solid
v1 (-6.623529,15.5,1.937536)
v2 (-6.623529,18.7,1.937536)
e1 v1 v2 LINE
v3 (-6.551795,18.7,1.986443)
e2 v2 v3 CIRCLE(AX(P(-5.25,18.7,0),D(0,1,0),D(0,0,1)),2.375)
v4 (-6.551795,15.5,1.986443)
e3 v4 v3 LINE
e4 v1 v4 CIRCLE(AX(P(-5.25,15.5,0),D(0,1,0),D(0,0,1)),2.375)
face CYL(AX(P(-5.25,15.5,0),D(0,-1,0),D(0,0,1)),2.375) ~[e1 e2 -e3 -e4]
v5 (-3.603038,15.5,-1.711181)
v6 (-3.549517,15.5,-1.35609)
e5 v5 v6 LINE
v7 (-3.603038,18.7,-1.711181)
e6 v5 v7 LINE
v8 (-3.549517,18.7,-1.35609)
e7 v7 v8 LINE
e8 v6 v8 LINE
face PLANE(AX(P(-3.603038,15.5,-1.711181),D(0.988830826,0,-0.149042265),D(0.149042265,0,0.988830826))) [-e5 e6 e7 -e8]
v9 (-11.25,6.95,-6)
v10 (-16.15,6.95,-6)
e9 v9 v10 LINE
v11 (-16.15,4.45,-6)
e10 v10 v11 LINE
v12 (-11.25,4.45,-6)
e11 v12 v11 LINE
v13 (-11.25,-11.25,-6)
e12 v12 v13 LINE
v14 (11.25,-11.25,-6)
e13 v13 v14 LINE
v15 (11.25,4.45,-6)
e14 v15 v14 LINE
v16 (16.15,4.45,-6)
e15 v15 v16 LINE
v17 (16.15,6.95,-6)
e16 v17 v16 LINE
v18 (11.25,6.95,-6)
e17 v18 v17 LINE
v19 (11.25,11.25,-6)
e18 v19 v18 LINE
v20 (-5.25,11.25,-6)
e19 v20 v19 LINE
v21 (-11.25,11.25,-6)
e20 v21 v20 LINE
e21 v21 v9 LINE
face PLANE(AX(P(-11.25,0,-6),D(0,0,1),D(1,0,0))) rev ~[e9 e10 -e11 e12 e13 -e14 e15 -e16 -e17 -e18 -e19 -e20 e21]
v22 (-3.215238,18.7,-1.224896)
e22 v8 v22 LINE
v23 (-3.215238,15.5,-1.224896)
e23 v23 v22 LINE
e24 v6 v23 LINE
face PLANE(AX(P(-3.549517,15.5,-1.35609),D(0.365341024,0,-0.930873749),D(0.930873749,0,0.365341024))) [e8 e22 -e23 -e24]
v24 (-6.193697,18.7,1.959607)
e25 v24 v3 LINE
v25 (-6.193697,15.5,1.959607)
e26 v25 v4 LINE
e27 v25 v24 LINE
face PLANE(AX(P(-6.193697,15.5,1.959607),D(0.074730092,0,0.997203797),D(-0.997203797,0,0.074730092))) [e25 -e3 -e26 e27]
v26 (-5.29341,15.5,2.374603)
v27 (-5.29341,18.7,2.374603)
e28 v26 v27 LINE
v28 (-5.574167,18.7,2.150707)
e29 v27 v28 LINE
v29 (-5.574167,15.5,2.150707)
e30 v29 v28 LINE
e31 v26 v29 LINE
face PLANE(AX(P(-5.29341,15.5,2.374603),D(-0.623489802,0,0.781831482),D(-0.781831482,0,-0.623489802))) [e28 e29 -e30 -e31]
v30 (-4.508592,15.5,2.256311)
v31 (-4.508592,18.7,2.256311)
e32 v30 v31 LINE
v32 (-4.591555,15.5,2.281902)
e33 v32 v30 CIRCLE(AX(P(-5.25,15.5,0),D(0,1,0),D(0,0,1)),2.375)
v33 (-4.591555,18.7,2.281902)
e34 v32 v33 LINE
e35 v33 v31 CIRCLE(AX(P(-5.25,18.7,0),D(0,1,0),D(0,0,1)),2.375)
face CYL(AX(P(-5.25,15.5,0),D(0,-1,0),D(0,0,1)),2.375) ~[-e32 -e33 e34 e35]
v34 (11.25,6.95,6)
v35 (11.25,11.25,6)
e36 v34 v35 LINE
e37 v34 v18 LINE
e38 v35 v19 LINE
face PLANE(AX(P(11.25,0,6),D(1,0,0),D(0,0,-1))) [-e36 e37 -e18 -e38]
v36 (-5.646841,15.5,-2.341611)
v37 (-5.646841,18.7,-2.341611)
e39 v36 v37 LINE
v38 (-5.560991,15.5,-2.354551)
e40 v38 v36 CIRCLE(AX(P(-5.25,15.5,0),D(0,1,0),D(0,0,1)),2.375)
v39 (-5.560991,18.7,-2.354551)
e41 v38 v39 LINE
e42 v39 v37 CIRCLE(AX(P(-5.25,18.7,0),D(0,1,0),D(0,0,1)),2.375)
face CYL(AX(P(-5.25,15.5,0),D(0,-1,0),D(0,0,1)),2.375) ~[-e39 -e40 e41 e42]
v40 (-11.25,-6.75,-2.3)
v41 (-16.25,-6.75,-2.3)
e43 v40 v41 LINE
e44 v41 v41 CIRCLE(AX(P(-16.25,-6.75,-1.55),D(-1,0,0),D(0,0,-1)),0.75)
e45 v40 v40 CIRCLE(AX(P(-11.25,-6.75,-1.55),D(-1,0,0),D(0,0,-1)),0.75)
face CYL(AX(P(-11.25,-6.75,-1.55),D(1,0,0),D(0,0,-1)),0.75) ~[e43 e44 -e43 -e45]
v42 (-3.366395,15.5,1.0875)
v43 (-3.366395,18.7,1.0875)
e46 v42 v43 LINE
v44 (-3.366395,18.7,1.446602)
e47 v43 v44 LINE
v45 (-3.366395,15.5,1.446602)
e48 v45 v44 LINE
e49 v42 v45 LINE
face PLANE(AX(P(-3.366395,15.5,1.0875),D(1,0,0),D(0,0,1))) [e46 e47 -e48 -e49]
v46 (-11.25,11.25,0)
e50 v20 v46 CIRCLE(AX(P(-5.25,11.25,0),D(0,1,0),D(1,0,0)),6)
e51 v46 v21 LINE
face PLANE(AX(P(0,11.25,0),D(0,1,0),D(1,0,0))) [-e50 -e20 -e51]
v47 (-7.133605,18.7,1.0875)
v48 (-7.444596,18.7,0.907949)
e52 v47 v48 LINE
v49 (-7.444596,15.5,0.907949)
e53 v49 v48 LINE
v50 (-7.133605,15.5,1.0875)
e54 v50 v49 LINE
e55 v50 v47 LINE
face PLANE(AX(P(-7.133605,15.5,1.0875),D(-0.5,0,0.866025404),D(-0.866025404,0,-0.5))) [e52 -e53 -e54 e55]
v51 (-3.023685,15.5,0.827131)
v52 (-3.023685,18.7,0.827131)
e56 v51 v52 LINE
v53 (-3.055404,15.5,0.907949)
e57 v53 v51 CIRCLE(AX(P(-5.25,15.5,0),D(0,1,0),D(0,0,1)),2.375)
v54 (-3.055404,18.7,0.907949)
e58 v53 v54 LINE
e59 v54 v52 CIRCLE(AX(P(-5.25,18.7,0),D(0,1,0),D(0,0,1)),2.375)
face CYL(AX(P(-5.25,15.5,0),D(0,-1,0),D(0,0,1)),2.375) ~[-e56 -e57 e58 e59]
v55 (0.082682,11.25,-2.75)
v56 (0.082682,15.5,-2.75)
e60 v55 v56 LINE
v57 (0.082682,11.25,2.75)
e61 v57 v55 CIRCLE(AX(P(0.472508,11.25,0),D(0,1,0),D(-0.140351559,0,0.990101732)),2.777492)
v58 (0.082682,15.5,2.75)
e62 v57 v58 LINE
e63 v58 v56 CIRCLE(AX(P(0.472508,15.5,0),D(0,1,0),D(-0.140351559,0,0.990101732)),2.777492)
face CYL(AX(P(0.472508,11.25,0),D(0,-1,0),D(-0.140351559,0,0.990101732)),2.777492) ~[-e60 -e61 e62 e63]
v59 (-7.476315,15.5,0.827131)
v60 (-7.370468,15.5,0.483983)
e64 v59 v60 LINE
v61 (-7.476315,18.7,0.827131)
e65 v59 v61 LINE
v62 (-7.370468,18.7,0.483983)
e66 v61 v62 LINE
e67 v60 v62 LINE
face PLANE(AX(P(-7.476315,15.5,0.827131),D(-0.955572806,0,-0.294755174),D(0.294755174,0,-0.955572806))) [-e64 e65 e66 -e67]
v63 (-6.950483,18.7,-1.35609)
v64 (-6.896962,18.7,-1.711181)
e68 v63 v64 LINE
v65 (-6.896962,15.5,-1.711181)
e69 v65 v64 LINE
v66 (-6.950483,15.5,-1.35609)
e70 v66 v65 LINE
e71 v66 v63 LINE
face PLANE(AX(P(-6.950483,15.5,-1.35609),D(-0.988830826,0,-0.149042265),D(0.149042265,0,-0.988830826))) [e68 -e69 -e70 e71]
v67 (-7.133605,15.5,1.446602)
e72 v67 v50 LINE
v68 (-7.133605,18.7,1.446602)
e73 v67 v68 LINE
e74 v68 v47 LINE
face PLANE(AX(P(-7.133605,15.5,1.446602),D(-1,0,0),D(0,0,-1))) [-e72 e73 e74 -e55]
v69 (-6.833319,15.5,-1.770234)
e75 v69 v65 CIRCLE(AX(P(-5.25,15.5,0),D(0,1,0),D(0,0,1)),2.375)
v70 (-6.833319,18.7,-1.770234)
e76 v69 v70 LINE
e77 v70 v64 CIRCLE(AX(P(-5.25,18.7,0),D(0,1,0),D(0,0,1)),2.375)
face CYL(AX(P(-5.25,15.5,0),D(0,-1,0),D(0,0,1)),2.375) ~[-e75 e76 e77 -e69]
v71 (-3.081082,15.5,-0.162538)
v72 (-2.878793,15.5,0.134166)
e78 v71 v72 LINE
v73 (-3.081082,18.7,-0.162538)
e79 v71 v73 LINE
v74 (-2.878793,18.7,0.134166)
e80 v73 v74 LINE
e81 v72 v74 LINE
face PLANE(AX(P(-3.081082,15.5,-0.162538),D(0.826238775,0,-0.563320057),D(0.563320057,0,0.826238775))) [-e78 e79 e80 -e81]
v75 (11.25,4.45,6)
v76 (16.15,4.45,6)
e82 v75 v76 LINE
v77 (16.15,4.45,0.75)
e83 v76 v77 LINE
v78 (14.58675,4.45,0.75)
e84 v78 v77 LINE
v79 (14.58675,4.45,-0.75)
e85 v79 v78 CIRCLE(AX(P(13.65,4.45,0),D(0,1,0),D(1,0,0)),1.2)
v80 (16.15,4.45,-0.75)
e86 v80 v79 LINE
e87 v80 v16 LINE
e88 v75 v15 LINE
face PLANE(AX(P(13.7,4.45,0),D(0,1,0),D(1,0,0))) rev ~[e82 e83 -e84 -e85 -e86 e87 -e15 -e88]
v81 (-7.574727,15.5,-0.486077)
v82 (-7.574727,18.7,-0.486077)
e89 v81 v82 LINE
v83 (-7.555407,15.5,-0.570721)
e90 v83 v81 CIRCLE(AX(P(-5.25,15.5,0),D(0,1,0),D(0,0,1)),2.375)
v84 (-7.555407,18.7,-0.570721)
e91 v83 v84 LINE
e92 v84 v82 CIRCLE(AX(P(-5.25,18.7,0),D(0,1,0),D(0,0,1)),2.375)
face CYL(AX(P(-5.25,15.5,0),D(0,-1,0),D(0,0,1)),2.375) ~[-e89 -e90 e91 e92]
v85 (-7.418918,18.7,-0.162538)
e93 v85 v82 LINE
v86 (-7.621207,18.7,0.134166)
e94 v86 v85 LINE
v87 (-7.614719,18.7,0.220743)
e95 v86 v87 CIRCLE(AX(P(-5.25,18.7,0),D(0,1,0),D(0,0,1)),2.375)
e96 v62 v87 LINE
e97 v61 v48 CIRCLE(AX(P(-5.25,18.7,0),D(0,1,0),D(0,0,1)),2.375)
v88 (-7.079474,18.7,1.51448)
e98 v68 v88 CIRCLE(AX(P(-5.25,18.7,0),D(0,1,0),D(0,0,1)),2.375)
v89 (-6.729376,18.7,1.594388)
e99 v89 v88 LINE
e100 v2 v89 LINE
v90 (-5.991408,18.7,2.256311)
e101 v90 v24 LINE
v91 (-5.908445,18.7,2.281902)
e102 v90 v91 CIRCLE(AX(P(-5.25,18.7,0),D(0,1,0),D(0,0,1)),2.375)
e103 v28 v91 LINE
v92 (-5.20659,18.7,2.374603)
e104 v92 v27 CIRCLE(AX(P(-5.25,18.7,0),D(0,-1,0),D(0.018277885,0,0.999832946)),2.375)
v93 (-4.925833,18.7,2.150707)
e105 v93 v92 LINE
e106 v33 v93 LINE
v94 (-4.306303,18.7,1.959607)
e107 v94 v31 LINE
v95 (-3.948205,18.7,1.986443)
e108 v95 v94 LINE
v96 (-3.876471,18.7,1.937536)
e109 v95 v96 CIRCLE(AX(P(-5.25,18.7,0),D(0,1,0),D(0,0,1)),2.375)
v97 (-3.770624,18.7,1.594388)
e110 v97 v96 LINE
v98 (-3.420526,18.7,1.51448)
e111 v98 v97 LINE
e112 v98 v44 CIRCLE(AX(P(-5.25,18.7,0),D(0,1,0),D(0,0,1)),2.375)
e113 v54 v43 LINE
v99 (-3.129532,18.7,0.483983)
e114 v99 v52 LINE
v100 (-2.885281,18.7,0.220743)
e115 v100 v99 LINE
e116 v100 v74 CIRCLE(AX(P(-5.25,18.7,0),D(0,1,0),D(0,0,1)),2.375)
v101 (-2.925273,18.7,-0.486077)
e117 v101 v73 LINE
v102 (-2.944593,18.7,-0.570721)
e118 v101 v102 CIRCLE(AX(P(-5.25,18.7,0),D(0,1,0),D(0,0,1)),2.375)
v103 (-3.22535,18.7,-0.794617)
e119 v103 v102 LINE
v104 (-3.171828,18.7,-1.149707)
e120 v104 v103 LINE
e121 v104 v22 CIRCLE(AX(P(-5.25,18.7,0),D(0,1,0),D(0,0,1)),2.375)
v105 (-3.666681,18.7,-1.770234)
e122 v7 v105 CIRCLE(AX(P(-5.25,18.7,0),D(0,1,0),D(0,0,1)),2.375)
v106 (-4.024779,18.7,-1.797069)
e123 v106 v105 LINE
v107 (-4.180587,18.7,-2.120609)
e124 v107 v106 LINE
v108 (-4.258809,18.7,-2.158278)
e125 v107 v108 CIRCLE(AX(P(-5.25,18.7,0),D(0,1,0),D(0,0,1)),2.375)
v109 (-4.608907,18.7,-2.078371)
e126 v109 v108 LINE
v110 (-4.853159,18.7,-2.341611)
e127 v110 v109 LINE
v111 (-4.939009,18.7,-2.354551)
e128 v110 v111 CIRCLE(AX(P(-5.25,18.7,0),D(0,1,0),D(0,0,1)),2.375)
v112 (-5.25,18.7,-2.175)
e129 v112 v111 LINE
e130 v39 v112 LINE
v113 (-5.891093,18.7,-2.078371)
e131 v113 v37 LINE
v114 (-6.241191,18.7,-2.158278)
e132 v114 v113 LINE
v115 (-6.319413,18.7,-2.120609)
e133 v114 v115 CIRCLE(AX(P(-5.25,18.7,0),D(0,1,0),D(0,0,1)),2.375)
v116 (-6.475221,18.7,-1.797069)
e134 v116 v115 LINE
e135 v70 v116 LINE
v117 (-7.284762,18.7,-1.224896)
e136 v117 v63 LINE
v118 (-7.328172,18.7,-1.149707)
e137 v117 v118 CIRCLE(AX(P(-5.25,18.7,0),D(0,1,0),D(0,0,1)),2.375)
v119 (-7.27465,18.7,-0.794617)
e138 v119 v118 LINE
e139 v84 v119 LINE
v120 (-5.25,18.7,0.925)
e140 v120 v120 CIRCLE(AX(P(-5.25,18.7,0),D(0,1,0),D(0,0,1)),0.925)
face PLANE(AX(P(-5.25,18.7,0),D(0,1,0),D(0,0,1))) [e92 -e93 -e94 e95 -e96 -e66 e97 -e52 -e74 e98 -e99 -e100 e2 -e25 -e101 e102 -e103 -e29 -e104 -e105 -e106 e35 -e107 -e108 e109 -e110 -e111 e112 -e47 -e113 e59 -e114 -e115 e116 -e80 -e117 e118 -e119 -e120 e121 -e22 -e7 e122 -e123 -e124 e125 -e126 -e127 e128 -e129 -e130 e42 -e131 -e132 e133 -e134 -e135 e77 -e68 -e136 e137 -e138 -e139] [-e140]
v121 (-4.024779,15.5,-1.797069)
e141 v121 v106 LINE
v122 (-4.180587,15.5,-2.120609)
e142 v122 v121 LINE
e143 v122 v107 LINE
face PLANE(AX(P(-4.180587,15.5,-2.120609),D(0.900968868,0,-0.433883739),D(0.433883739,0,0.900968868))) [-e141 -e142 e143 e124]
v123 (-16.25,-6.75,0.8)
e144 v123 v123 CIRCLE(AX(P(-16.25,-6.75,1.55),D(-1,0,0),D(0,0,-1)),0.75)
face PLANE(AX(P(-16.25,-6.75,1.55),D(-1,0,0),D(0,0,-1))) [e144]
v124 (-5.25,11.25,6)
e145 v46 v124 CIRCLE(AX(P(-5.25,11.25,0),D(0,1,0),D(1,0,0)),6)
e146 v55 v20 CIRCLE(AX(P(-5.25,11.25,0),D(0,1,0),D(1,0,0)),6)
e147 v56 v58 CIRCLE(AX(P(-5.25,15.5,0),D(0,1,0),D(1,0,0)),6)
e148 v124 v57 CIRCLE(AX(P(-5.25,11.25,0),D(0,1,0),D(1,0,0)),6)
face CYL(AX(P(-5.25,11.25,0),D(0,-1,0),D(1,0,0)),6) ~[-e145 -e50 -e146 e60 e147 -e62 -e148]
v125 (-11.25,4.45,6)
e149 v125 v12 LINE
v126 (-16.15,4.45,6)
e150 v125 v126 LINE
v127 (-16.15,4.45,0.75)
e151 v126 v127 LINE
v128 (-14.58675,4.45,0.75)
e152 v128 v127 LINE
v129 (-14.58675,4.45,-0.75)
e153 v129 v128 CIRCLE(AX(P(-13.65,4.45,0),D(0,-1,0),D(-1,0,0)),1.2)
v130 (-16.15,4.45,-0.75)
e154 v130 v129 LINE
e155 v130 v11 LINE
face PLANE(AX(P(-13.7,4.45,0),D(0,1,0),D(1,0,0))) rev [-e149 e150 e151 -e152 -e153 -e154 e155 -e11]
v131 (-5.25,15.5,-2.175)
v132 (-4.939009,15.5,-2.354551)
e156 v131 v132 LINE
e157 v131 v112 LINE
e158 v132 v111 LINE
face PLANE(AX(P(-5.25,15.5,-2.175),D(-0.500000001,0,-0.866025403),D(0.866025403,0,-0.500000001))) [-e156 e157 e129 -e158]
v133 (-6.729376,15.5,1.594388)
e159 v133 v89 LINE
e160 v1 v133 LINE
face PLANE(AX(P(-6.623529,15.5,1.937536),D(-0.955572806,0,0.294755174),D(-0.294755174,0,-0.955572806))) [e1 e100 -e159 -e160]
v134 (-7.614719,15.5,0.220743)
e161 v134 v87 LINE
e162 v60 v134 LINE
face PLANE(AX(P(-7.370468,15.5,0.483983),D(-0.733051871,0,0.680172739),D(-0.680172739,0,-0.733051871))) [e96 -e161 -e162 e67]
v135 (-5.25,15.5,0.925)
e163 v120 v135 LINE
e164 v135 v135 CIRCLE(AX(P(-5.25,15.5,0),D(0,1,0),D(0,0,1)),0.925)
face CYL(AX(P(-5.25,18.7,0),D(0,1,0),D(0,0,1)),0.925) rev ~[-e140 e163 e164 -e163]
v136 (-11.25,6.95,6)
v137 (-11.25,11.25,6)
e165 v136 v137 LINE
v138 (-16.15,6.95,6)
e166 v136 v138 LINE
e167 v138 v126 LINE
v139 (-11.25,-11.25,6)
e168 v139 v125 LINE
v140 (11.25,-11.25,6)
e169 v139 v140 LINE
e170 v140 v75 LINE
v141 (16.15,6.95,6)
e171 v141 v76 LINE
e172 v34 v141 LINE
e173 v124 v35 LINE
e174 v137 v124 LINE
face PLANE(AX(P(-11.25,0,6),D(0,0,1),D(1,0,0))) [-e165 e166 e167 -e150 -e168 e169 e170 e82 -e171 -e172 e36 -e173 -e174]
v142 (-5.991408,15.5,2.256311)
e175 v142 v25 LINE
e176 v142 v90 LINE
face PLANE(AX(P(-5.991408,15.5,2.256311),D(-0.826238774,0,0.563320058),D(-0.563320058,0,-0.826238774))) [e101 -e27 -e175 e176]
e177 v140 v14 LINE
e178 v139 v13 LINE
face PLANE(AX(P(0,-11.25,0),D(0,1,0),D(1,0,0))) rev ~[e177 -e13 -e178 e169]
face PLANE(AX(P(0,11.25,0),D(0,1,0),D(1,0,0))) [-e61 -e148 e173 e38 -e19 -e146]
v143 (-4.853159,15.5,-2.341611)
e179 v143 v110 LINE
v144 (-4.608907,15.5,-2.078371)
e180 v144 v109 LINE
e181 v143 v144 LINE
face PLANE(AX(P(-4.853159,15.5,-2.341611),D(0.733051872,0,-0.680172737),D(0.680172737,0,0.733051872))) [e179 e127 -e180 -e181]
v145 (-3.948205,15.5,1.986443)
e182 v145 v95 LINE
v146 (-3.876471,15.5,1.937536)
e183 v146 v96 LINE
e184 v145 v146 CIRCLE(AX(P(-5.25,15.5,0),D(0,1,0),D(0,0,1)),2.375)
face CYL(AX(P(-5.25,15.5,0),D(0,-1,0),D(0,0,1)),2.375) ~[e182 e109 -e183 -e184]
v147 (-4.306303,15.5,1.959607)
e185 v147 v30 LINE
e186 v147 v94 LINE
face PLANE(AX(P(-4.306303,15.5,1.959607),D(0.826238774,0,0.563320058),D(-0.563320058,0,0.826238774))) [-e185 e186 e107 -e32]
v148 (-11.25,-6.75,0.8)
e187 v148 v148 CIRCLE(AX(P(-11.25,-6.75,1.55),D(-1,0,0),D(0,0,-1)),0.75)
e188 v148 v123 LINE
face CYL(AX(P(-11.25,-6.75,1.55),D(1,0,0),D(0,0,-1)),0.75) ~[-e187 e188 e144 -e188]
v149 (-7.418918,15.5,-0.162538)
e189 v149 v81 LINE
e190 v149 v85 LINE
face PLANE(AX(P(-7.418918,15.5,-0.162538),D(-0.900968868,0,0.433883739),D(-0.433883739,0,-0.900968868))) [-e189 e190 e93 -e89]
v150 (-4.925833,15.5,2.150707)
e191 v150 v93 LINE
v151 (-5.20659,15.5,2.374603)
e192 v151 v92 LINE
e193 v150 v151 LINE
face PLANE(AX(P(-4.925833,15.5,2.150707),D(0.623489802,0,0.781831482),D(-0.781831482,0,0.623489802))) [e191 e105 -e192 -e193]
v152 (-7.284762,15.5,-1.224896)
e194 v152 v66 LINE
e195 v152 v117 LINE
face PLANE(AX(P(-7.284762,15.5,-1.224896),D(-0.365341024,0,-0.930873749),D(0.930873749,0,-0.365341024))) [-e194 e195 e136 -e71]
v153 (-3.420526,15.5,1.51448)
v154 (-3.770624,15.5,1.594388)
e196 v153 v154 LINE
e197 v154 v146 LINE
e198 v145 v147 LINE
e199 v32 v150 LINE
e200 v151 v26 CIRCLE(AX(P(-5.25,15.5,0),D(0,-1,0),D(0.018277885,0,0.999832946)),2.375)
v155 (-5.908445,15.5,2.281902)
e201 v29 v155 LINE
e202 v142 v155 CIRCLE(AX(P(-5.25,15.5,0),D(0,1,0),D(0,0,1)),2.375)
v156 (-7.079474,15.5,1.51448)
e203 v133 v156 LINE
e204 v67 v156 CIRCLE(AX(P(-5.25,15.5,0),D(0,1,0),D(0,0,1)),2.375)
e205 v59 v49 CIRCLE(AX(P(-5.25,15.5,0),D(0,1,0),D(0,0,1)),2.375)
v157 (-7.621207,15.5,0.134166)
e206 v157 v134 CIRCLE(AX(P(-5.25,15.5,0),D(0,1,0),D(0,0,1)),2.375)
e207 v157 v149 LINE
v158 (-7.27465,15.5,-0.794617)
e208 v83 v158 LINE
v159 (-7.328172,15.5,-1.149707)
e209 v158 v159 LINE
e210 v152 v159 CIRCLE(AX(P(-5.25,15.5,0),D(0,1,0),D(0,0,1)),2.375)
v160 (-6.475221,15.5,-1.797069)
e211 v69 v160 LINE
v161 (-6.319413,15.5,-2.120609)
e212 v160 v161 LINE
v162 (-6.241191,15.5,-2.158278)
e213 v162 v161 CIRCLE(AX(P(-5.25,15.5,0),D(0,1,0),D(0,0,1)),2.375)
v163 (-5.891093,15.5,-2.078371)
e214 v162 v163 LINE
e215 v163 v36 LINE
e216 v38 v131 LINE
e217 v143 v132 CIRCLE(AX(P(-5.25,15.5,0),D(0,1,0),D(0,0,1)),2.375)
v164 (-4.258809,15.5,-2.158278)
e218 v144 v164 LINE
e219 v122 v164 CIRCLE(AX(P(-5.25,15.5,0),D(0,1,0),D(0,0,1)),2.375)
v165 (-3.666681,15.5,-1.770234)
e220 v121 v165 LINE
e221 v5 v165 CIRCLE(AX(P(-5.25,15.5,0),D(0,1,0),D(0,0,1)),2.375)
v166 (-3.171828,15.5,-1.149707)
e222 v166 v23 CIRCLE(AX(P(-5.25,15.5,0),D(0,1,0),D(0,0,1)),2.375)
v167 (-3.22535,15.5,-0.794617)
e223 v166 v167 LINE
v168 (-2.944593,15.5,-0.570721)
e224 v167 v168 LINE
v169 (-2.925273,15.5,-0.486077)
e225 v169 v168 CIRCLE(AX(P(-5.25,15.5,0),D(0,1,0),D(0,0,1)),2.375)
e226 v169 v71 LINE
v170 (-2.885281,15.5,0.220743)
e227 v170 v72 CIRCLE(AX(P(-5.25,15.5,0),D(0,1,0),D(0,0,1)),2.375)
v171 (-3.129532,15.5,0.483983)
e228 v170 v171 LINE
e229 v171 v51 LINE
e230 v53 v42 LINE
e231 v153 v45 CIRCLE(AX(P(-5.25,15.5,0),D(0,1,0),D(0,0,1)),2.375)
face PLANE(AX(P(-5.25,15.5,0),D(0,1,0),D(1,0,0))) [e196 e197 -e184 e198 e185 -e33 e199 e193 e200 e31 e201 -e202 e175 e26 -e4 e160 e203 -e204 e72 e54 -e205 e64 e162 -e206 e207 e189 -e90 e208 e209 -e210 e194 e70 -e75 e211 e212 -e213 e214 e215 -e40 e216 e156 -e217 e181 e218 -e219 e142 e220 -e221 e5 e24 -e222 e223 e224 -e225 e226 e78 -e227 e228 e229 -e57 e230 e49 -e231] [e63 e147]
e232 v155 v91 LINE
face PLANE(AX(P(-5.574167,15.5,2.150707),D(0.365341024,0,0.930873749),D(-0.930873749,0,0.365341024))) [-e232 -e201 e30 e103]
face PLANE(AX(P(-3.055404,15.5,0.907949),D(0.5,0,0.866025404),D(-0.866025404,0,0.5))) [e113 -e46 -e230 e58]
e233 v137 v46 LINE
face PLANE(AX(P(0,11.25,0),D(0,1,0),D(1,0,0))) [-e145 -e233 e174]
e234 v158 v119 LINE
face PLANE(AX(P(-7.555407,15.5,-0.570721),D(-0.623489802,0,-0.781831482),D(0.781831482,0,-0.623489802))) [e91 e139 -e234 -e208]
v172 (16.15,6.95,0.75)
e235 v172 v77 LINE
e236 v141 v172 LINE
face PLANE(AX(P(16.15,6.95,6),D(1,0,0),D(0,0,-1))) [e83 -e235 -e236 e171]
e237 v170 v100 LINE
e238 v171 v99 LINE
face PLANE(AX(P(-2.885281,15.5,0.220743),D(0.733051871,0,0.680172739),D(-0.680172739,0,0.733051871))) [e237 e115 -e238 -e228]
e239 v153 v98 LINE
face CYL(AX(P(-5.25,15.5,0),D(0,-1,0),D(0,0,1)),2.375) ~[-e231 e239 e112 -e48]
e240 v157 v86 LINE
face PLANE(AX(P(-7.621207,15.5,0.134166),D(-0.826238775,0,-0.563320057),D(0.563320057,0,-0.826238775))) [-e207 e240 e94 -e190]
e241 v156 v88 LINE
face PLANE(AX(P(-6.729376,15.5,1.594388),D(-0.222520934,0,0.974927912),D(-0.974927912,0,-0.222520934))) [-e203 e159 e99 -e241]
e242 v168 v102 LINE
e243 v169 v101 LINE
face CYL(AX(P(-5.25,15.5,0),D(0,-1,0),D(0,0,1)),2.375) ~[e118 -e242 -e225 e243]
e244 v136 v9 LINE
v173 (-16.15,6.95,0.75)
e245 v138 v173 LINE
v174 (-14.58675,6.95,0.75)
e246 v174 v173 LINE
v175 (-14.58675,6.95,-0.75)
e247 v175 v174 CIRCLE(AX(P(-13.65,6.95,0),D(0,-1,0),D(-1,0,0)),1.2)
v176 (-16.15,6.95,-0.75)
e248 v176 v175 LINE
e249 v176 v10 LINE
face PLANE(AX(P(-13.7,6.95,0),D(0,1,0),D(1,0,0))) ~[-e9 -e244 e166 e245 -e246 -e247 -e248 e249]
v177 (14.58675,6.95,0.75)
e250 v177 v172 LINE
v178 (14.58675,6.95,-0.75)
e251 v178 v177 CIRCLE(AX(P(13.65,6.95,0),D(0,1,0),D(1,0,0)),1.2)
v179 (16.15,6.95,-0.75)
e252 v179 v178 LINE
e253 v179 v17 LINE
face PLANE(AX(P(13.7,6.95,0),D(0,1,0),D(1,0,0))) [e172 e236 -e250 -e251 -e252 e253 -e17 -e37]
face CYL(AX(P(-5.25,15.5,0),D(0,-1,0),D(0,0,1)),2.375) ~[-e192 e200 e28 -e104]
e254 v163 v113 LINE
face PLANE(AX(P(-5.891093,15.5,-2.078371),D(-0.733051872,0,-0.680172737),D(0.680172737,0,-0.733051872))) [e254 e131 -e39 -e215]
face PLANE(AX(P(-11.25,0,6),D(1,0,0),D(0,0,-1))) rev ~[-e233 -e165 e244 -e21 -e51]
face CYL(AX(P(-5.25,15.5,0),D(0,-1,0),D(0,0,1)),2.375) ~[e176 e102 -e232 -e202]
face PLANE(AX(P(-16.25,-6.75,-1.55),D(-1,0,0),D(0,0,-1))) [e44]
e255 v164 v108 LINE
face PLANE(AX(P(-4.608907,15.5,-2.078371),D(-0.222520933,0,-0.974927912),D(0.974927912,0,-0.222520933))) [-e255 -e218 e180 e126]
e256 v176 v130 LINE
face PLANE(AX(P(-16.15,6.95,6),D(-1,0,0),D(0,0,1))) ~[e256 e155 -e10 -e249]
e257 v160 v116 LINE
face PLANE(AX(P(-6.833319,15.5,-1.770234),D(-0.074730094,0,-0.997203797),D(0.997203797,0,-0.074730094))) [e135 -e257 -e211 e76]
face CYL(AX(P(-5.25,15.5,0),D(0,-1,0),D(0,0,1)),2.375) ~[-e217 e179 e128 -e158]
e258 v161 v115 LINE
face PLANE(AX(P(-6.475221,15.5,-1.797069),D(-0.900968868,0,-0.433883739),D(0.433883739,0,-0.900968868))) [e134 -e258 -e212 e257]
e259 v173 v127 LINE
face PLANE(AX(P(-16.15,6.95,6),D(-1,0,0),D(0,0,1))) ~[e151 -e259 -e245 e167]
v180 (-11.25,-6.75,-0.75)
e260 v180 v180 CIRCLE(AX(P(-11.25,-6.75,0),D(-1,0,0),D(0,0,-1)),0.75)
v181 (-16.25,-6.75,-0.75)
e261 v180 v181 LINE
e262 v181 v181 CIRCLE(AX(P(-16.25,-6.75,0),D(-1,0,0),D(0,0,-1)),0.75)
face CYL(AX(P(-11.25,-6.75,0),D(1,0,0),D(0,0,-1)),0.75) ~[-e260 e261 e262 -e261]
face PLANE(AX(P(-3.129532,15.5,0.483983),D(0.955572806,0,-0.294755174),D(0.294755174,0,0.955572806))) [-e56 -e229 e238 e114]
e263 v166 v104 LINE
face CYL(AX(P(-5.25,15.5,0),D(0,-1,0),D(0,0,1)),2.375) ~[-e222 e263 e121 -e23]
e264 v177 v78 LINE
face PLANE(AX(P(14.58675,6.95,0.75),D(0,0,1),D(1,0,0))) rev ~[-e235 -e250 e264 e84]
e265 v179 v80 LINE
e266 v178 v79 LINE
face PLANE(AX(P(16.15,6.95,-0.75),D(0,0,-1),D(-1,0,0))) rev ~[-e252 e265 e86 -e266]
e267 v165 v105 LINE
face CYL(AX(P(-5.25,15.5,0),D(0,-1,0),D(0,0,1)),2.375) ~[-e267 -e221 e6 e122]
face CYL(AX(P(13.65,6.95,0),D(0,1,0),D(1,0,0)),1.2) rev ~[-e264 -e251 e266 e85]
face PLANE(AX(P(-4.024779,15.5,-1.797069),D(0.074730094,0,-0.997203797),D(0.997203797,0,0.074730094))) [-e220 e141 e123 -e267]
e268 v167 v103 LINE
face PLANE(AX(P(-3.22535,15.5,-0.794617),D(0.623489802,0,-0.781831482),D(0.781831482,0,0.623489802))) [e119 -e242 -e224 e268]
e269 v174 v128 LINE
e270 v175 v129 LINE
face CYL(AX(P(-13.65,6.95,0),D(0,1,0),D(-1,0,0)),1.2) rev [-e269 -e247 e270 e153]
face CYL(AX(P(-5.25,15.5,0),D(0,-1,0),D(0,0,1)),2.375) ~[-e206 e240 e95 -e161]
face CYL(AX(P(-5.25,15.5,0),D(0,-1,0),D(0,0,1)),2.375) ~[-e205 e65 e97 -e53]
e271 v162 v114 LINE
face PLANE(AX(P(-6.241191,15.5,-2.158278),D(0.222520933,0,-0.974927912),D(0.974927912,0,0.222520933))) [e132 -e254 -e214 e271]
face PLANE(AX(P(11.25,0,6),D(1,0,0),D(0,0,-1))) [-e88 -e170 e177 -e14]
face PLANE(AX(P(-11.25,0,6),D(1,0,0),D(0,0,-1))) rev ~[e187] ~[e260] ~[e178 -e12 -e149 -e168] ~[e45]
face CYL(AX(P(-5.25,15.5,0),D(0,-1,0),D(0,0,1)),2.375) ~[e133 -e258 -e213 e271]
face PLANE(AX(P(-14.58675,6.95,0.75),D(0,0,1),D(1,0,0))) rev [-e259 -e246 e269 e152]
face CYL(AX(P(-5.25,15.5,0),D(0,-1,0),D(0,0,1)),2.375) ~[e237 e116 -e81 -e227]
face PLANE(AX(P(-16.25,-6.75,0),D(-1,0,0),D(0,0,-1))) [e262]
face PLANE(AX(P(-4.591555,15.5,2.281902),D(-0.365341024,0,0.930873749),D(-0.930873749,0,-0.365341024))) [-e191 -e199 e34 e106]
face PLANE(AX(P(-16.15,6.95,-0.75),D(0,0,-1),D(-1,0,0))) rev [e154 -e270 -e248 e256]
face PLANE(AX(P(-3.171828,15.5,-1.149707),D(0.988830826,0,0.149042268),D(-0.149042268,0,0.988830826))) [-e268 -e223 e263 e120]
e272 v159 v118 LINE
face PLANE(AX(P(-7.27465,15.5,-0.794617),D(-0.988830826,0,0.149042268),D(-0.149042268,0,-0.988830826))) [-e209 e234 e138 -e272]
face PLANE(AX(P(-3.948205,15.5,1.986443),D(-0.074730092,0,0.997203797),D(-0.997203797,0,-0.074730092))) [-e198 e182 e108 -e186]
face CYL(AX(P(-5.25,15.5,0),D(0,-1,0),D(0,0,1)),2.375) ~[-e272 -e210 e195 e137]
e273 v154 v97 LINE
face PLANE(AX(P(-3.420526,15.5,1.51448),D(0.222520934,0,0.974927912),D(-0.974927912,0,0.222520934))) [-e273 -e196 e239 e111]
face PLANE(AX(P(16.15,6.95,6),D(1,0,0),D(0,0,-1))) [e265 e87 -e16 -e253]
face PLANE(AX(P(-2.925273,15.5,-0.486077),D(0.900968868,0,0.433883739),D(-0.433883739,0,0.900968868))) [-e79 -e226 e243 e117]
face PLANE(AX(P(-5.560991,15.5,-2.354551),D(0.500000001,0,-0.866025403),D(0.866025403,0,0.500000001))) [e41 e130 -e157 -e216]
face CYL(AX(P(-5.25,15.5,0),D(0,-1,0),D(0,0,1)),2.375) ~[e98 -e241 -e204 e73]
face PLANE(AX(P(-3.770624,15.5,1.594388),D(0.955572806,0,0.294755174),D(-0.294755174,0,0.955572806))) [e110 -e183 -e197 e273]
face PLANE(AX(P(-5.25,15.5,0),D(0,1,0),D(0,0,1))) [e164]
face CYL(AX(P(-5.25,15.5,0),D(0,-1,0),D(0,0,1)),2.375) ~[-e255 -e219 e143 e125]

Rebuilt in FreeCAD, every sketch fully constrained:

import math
import FreeCAD as App
import Part
import Sketcher

V = App.Vector
Q = App.Units.Quantity

doc = App.newDocument("Part")
params = doc.addObject("Spreadsheet::Sheet", "Params")
for row, (alias, value) in enumerate([
    ("sketch1_height", "12 mm"),
    ("sketch1_width", "22.5 mm"),
    ("pad1_length", "22.5 mm"),
    ("sketch2_radius", "6 mm"),
    ("pad2_length", "4.25 mm"),
    ("sketch3_height", "12 mm"),
    ("sketch3_width", "4.9 mm"),
    ("pad3_length", "2.5 mm"),
    ("sketch4_radius", "1.2 mm"),
    ("sketch4_height", "1.5 mm"),
    ("pocket1_length", "2.5 mm"),
    ("sketch5_diameter", "1.5 mm"),
    ("pad4_length", "5 mm"),
    ("sketch6_diameter", "4.75 mm"),
    ("pad5_length", "3.2 mm"),
    ("pocket2_length", "3.2 mm"),
    ("sketch8_diameter", "1.85 mm"),
    ("pocket3_length", "3.2 mm"),
], start=1):
    params.set(f"A{row}", alias)
    params.set(f"B{row}", "=" + value)
    params.setAlias(f"B{row}", alias)

body = doc.addObject("PartDesign::Body", "Body")

sketch1 = body.newObject("Sketcher::SketchObject", "Sketch")
sketch1.AttachmentSupport = (doc.getObject("XZ_Plane"), [""])
sketch1.MapMode = "FlatFace"
sketch1.addGeometry([
    Part.LineSegment(V(-11, -6, 0), V(-11, 6, 0)),
    Part.LineSegment(V(-11, 6, 0), V(11, 6, 0)),
    Part.LineSegment(V(11, 6, 0), V(11, -6, 0)),
    Part.LineSegment(V(11, -6, 0), V(-11, -6, 0)),
], False)
sketch1.addConstraint([
    Sketcher.Constraint("Coincident", 0, 2, 1, 1),
    Sketcher.Constraint("Coincident", 1, 2, 2, 1),
    Sketcher.Constraint("Coincident", 2, 2, 3, 1),
    Sketcher.Constraint("Coincident", 3, 2, 0, 1),
    Sketcher.Constraint("Vertical", 0),
    Sketcher.Constraint("Horizontal", 1),
    Sketcher.Constraint("Vertical", 2),
    Sketcher.Constraint("Horizontal", 3),
    Sketcher.Constraint("Symmetric", 0, 2, 2, 2, -1, 1),
    Sketcher.Constraint("DistanceY", 0, 1, 0, 2, Q("12 mm")),
    Sketcher.Constraint("DistanceX", 1, 1, 1, 2, Q("22.5 mm")),
])
sketch1.setExpression("Constraints[9]", "Params.sketch1_height")
sketch1.setExpression("Constraints[10]", "Params.sketch1_width")
pad1 = body.newObject("PartDesign::Pad", "Pad")
pad1.Profile = sketch1
pad1.setExpression("Length", "Params.pad1_length")
pad1.Midplane = True

sketch2 = body.newObject("Sketcher::SketchObject", "Sketch001")
sketch2.AttachmentSupport = (doc.getObject("XZ_Plane"), [""])
sketch2.MapMode = "FlatFace"
sketch2.AttachmentOffset = App.Placement(V(0, 0, -11.25), App.Rotation())
sketch2.addGeometry([
    Part.ArcOfCircle(Part.Circle(V(-5.2, 0, 0), V(0, 0, 1), 6), math.radians(27), math.radians(333)),
    Part.ArcOfCircle(Part.Circle(V(0.5, 0, 0), V(0, 0, 1), 2.8), math.radians(-98), math.radians(98)),
], False)
sketch2.addConstraint([
    Sketcher.Constraint("Coincident", 0, 1, 1, 2),
    Sketcher.Constraint("Coincident", 1, 1, 0, 2),
    Sketcher.Constraint("Symmetric", 0, 1, 1, 1, -1),
    Sketcher.Constraint("Radius", 0, Q("6 mm")),
    Sketcher.Constraint("DistanceY", 1, 1, 0, 1, Q("5.5 mm")),
    Sketcher.Constraint("DistanceX", 0, 3, -1, 1, Q("5.25 mm")),
    Sketcher.Constraint("Radius", 1, Q("2.777492 mm")),
])
sketch2.setExpression("Constraints[3]", "Params.sketch2_radius")
pad2 = body.newObject("PartDesign::Pad", "Pad001")
pad2.Profile = sketch2
pad2.setExpression("Length", "Params.pad2_length")
pad2.Reversed = True

sketch3 = body.newObject("Sketcher::SketchObject", "Sketch002")
sketch3.AttachmentSupport = (doc.getObject("XZ_Plane"), [""])
sketch3.MapMode = "FlatFace"
sketch3.AttachmentOffset = App.Placement(V(0, 0, -6.95), App.Rotation())
sketch3.addGeometry([
    Part.LineSegment(V(11.2, -6, 0), V(11.2, 6, 0)),
    Part.LineSegment(V(11.2, 6, 0), V(16.1, 6, 0)),
    Part.LineSegment(V(16.1, 6, 0), V(16.1, -6, 0)),
    Part.LineSegment(V(16.1, -6, 0), V(11.2, -6, 0)),
], False)
sketch3.addConstraint([
    Sketcher.Constraint("Coincident", 0, 2, 1, 1),
    Sketcher.Constraint("Coincident", 1, 2, 2, 1),
    Sketcher.Constraint("Coincident", 2, 2, 3, 1),
    Sketcher.Constraint("Coincident", 3, 2, 0, 1),
    Sketcher.Constraint("Vertical", 0),
    Sketcher.Constraint("Horizontal", 1),
    Sketcher.Constraint("Vertical", 2),
    Sketcher.Constraint("Horizontal", 3),
    Sketcher.Constraint("DistanceY", 0, 1, 0, 2, Q("12 mm")),
    Sketcher.Constraint("DistanceX", 1, 1, 1, 2, Q("4.9 mm")),
    Sketcher.Constraint("DistanceY", -1, 1, 0, 2, Q("6 mm")),
    Sketcher.Constraint("DistanceX", -1, 1, 0, 2, Q("11.25 mm")),
])
sketch3.setExpression("Constraints[8]", "Params.sketch3_height")
sketch3.setExpression("Constraints[9]", "Params.sketch3_width")
pad3 = body.newObject("PartDesign::Pad", "Pad002")
pad3.Profile = sketch3
pad3.setExpression("Length", "Params.pad3_length")

sketch4 = body.newObject("Sketcher::SketchObject", "Sketch003")
sketch4.AttachmentSupport = (doc.getObject("XZ_Plane"), [""])
sketch4.MapMode = "FlatFace"
sketch4.AttachmentOffset = App.Placement(V(0, 0, -6.95), App.Rotation())
sketch4.addGeometry([
    Part.LineSegment(V(16.1, 0.8, 0), V(16.1, -0.8, 0)),
    Part.LineSegment(V(16.1, -0.8, 0), V(14.6, -0.8, 0)),
    Part.ArcOfCircle(Part.Circle(V(13.7, 0, 0), V(0, 0, 1), 1.2), math.radians(39), math.radians(321)),
    Part.LineSegment(V(14.6, 0.8, 0), V(16.1, 0.8, 0)),
], False)
sketch4.addConstraint([
    Sketcher.Constraint("Coincident", 0, 2, 1, 1),
    Sketcher.Constraint("Coincident", 1, 2, 2, 2),
    Sketcher.Constraint("Coincident", 2, 1, 3, 1),
    Sketcher.Constraint("Coincident", 3, 2, 0, 1),
    Sketcher.Constraint("Vertical", 0),
    Sketcher.Constraint("Horizontal", 1),
    Sketcher.Constraint("Horizontal", 3),
    Sketcher.Constraint("Symmetric", 1, 2, 2, 1, -1),
    Sketcher.Constraint("Radius", 2, Q("1.2 mm")),
    Sketcher.Constraint("DistanceY", 0, 2, 0, 1, Q("1.5 mm")),
    Sketcher.Constraint("DistanceX", 2, 3, 0, 2, Q("2.5 mm")),
    Sketcher.Constraint("DistanceX", -1, 1, 2, 3, Q("13.65 mm")),
])
sketch4.setExpression("Constraints[8]", "Params.sketch4_radius")
sketch4.setExpression("Constraints[9]", "Params.sketch4_height")
pocket1 = body.newObject("PartDesign::Pocket", "Pocket")
pocket1.Profile = sketch4
pocket1.setExpression("Length", "Params.pocket1_length")
pocket1.Reversed = True
doc.recompute()

mirrored = body.newObject("PartDesign::Mirrored", "Mirrored")
mirrored.Originals = [pad3, pocket1]
mirrored.MirrorPlane = (doc.getObject("YZ_Plane"), [""])
body.Tip = mirrored

sketch5 = body.newObject("Sketcher::SketchObject", "Sketch004")
sketch5.AttachmentSupport = (doc.getObject("YZ_Plane"), [""])
sketch5.MapMode = "FlatFace"
sketch5.AttachmentOffset = App.Placement(V(0, 0, -11.25), App.Rotation())
sketch5.addGeometry([
    Part.Circle(V(-6.8, 0, 0), V(0, 0, 1), 0.8),
    Part.Circle(V(-6.8, 1.6, 0), V(0, 0, 1), 0.8),
    Part.Circle(V(-6.8, -1.6, 0), V(0, 0, 1), 0.8),
], False)
sketch5.addConstraint([
    Sketcher.Constraint("Equal", 0, 1),
    Sketcher.Constraint("Equal", 1, 2),
    Sketcher.Constraint("Symmetric", 1, 3, 2, 3, -1),
    Sketcher.Constraint("PointOnObject", 0, 3, -1),
    Sketcher.Constraint("Vertical", 0, 3, 1, 3),
    Sketcher.Constraint("Diameter", 0, Q("1.5 mm")),
    Sketcher.Constraint("DistanceY", 2, 3, 1, 3, Q("3.1 mm")),
    Sketcher.Constraint("DistanceX", 0, 3, -1, 1, Q("6.75 mm")),
])
sketch5.setExpression("Constraints[5]", "Params.sketch5_diameter")
pad4 = body.newObject("PartDesign::Pad", "Pad003")
pad4.Profile = sketch5
pad4.setExpression("Length", "Params.pad4_length")
pad4.Reversed = True

sketch6 = body.newObject("Sketcher::SketchObject", "Sketch005")
sketch6.AttachmentSupport = (doc.getObject("XZ_Plane"), [""])
sketch6.MapMode = "FlatFace"
sketch6.AttachmentOffset = App.Placement(V(0, 0, -15.5), App.Rotation())
sketch6.addGeometry(Part.Circle(V(-5.2, 0, 0), V(0, 0, 1), 2.4), False)
sketch6.addConstraint([
    Sketcher.Constraint("PointOnObject", 0, 3, -1),
    Sketcher.Constraint("Diameter", 0, Q("4.75 mm")),
    Sketcher.Constraint("DistanceX", 0, 3, -1, 1, Q("5.25 mm")),
])
sketch6.setExpression("Constraints[1]", "Params.sketch6_diameter")
pad5 = body.newObject("PartDesign::Pad", "Pad004")
pad5.Profile = sketch6
pad5.setExpression("Length", "Params.pad5_length")
pad5.Reversed = True

sketch7 = body.newObject("Sketcher::SketchObject", "Sketch006")
sketch7.AttachmentSupport = (doc.getObject("XZ_Plane"), [""])
sketch7.MapMode = "FlatFace"
sketch7.AttachmentOffset = App.Placement(V(0, 0, -15.5), App.Rotation())
sketch7.addGeometry([
    Part.ArcOfCircle(Part.Circle(V(-5.25, 0, 0), V(0, 0, 1), 2.38), math.radians(-97.52), math.radians(-82.48)),
    Part.LineSegment(V(-5.56, -2.35, 0), V(-5.25, -2.17, 0)),
    Part.LineSegment(V(-5.25, -2.17, 0), V(-4.94, -2.35, 0)),
    Part.ArcOfCircle(Part.Circle(V(-5.25, 0, 0), V(0, 0, 1), 2.37), math.radians(-80.38), math.radians(-65.33)),
    Part.LineSegment(V(-4.85, -2.34, 0), V(-4.61, -2.08, 0)),
    Part.LineSegment(V(-4.61, -2.08, 0), V(-4.26, -2.16, 0)),
    Part.ArcOfCircle(Part.Circle(V(-5.25, 0, 0), V(0, 0, 1), 2.37), math.radians(-63.24), math.radians(-48.19)),
    Part.LineSegment(V(-4.18, -2.12, 0), V(-4.02, -1.8, 0)),
    Part.LineSegment(V(-4.02, -1.8, 0), V(-3.67, -1.77, 0)),
    Part.ArcOfCircle(Part.Circle(V(-5.25, 0, 0), V(0, 0, 1), 2.38), math.radians(-46.1), math.radians(-31.05)),
    Part.LineSegment(V(-3.6, -1.71, 0), V(-3.55, -1.36, 0)),
    Part.LineSegment(V(-3.55, -1.36, 0), V(-3.22, -1.22, 0)),
    Part.ArcOfCircle(Part.Circle(V(-5.25, 0, 0), V(0, 0, 1), 2.38), math.radians(-28.95), math.radians(-13.9)),
    Part.LineSegment(V(-3.17, -1.15, 0), V(-3.23, -0.79, 0)),
    Part.LineSegment(V(-3.23, -0.79, 0), V(-2.94, -0.57, 0)),
    Part.ArcOfCircle(Part.Circle(V(-5.25, 0, 0), V(0, 0, 1), 2.38), math.radians(-11.81), math.radians(3.24)),
    Part.LineSegment(V(-2.93, -0.49, 0), V(-3.08, -0.16, 0)),
    Part.LineSegment(V(-3.08, -0.16, 0), V(-2.88, 0.13, 0)),
    Part.ArcOfCircle(Part.Circle(V(-5.25, 0, 0), V(0, 0, 1), 2.38), math.radians(5.33), math.radians(20.38)),
    Part.LineSegment(V(-2.89, 0.22, 0), V(-3.13, 0.48, 0)),
    Part.LineSegment(V(-3.13, 0.48, 0), V(-3.02, 0.83, 0)),
    Part.ArcOfCircle(Part.Circle(V(-5.25, 0, 0), V(0, 0, 1), 2.37), math.radians(22.48), math.radians(37.52)),
    Part.LineSegment(V(-3.06, 0.91, 0), V(-3.37, 1.09, 0)),
    Part.LineSegment(V(-3.37, 1.09, 0), V(-3.37, 1.45, 0)),
    Part.ArcOfCircle(Part.Circle(V(-5.25, 0, 0), V(0, 0, 1), 2.37), math.radians(39.62), math.radians(54.67)),
    Part.LineSegment(V(-3.42, 1.51, 0), V(-3.77, 1.59, 0)),
    Part.LineSegment(V(-3.77, 1.59, 0), V(-3.88, 1.94, 0)),
    Part.ArcOfCircle(Part.Circle(V(-5.25, 0, 0), V(0, 0, 1), 2.38), math.radians(56.76), math.radians(71.81)),
    Part.LineSegment(V(-3.95, 1.99, 0), V(-4.31, 1.96, 0)),
    Part.LineSegment(V(-4.31, 1.96, 0), V(-4.51, 2.26, 0)),
    Part.ArcOfCircle(Part.Circle(V(-5.25, 0, 0), V(0, 0, 1), 2.38), math.radians(73.9), math.radians(88.95)),
    Part.LineSegment(V(-4.59, 2.28, 0), V(-4.93, 2.15, 0)),
    Part.LineSegment(V(-4.93, 2.15, 0), V(-5.21, 2.37, 0)),
    Part.ArcOfCircle(Part.Circle(V(-5.25, 0, 0), V(0, 0, 1), 2.38), math.radians(91.05), math.radians(106.1)),
    Part.LineSegment(V(-5.29, 2.37, 0), V(-5.57, 2.15, 0)),
    Part.LineSegment(V(-5.57, 2.15, 0), V(-5.91, 2.28, 0)),
    Part.ArcOfCircle(Part.Circle(V(-5.25, 0, 0), V(0, 0, 1), 2.38), math.radians(108.19), math.radians(123.24)),
    Part.LineSegment(V(-5.99, 2.26, 0), V(-6.19, 1.96, 0)),
    Part.LineSegment(V(-6.19, 1.96, 0), V(-6.55, 1.99, 0)),
    Part.ArcOfCircle(Part.Circle(V(-5.25, 0, 0), V(0, 0, 1), 2.37), math.radians(125.33), math.radians(140.38)),
    Part.LineSegment(V(-6.62, 1.94, 0), V(-6.73, 1.59, 0)),
    Part.LineSegment(V(-6.73, 1.59, 0), V(-7.08, 1.51, 0)),
    Part.ArcOfCircle(Part.Circle(V(-5.25, 0, 0), V(0, 0, 1), 2.37), math.radians(142.48), math.radians(157.52)),
    Part.LineSegment(V(-7.13, 1.45, 0), V(-7.13, 1.09, 0)),
    Part.LineSegment(V(-7.13, 1.09, 0), V(-7.44, 0.91, 0)),
    Part.ArcOfCircle(Part.Circle(V(-5.25, 0, 0), V(0, 0, 1), 2.38), math.radians(159.62), math.radians(174.67)),
    Part.LineSegment(V(-7.48, 0.83, 0), V(-7.37, 0.48, 0)),
    Part.LineSegment(V(-7.37, 0.48, 0), V(-7.61, 0.22, 0)),
    Part.ArcOfCircle(Part.Circle(V(-5.25, 0, 0), V(0, 0, 1), 2.38), math.radians(176.76), math.radians(191.81)),
    Part.LineSegment(V(-7.62, 0.13, 0), V(-7.42, -0.16, 0)),
    Part.LineSegment(V(-7.42, -0.16, 0), V(-7.57, -0.49, 0)),
    Part.ArcOfCircle(Part.Circle(V(-5.25, 0, 0), V(0, 0, 1), 2.38), math.radians(-166.1), math.radians(-151.05)),
    Part.LineSegment(V(-7.56, -0.57, 0), V(-7.27, -0.79, 0)),
    Part.LineSegment(V(-7.27, -0.79, 0), V(-7.33, -1.15, 0)),
    Part.ArcOfCircle(Part.Circle(V(-5.25, 0, 0), V(0, 0, 1), 2.38), math.radians(-148.95), math.radians(-133.9)),
    Part.LineSegment(V(-7.28, -1.22, 0), V(-6.95, -1.36, 0)),
    Part.LineSegment(V(-6.95, -1.36, 0), V(-6.9, -1.71, 0)),
    Part.ArcOfCircle(Part.Circle(V(-5.25, 0, 0), V(0, 0, 1), 2.37), math.radians(-131.81), math.radians(-116.76)),
    Part.LineSegment(V(-6.83, -1.77, 0), V(-6.48, -1.8, 0)),
    Part.LineSegment(V(-6.48, -1.8, 0), V(-6.32, -2.12, 0)),
    Part.ArcOfCircle(Part.Circle(V(-5.25, 0, 0), V(0, 0, 1), 2.37), math.radians(-114.67), math.radians(-99.62)),
    Part.LineSegment(V(-6.24, -2.16, 0), V(-5.89, -2.08, 0)),
    Part.LineSegment(V(-5.89, -2.08, 0), V(-5.65, -2.34, 0)),
], False)
sketch7.addConstraint([
    Sketcher.Constraint("Coincident", 0, 1, 1, 1),
    Sketcher.Constraint("Coincident", 1, 2, 2, 1),
    Sketcher.Constraint("Coincident", 2, 2, 0, 2),
    Sketcher.Constraint("Coincident", 3, 1, 4, 1),
    Sketcher.Constraint("Coincident", 4, 2, 5, 1),
    Sketcher.Constraint("Coincident", 5, 2, 3, 2),
    Sketcher.Constraint("Coincident", 6, 1, 7, 1),
    Sketcher.Constraint("Coincident", 7, 2, 8, 1),
    Sketcher.Constraint("Coincident", 8, 2, 6, 2),
    Sketcher.Constraint("Coincident", 9, 1, 10, 1),
    Sketcher.Constraint("Coincident", 10, 2, 11, 1),
    Sketcher.Constraint("Coincident", 11, 2, 9, 2),
    Sketcher.Constraint("Coincident", 12, 1, 13, 1),
    Sketcher.Constraint("Coincident", 13, 2, 14, 1),
    Sketcher.Constraint("Coincident", 14, 2, 12, 2),
    Sketcher.Constraint("Coincident", 15, 1, 16, 1),
    Sketcher.Constraint("Coincident", 16, 2, 17, 1),
    Sketcher.Constraint("Coincident", 17, 2, 15, 2),
    Sketcher.Constraint("Coincident", 18, 1, 19, 1),
    Sketcher.Constraint("Coincident", 19, 2, 20, 1),
    Sketcher.Constraint("Coincident", 20, 2, 18, 2),
    Sketcher.Constraint("Coincident", 21, 1, 22, 1),
    Sketcher.Constraint("Coincident", 22, 2, 23, 1),
    Sketcher.Constraint("Coincident", 23, 2, 21, 2),
    Sketcher.Constraint("Coincident", 24, 1, 25, 1),
    Sketcher.Constraint("Coincident", 25, 2, 26, 1),
    Sketcher.Constraint("Coincident", 26, 2, 24, 2),
    Sketcher.Constraint("Coincident", 27, 1, 28, 1),
    Sketcher.Constraint("Coincident", 28, 2, 29, 1),
    Sketcher.Constraint("Coincident", 29, 2, 27, 2),
    Sketcher.Constraint("Coincident", 30, 1, 31, 1),
    Sketcher.Constraint("Coincident", 31, 2, 32, 1),
    Sketcher.Constraint("Coincident", 32, 2, 30, 2),
    Sketcher.Constraint("Coincident", 33, 1, 34, 1),
    Sketcher.Constraint("Coincident", 34, 2, 35, 1),
    Sketcher.Constraint("Coincident", 35, 2, 33, 2),
    Sketcher.Constraint("Coincident", 36, 1, 37, 1),
    Sketcher.Constraint("Coincident", 37, 2, 38, 1),
    Sketcher.Constraint("Coincident", 38, 2, 36, 2),
    Sketcher.Constraint("Coincident", 39, 1, 40, 1),
    Sketcher.Constraint("Coincident", 40, 2, 41, 1),
    Sketcher.Constraint("Coincident", 41, 2, 39, 2),
    Sketcher.Constraint("Coincident", 42, 1, 43, 1),
    Sketcher.Constraint("Coincident", 43, 2, 44, 1),
    Sketcher.Constraint("Coincident", 44, 2, 42, 2),
    Sketcher.Constraint("Coincident", 45, 1, 46, 1),
    Sketcher.Constraint("Coincident", 46, 2, 47, 1),
    Sketcher.Constraint("Coincident", 47, 2, 45, 2),
    Sketcher.Constraint("Coincident", 48, 1, 49, 1),
    Sketcher.Constraint("Coincident", 49, 2, 50, 1),
    Sketcher.Constraint("Coincident", 50, 2, 48, 2),
    Sketcher.Constraint("Coincident", 51, 1, 52, 1),
    Sketcher.Constraint("Coincident", 52, 2, 53, 1),
    Sketcher.Constraint("Coincident", 53, 2, 51, 2),
    Sketcher.Constraint("Coincident", 54, 1, 55, 1),
    Sketcher.Constraint("Coincident", 55, 2, 56, 1),
    Sketcher.Constraint("Coincident", 56, 2, 54, 2),
    Sketcher.Constraint("Coincident", 57, 1, 58, 1),
    Sketcher.Constraint("Coincident", 58, 2, 59, 1),
    Sketcher.Constraint("Coincident", 59, 2, 57, 2),
    Sketcher.Constraint("Coincident", 60, 1, 61, 1),
    Sketcher.Constraint("Coincident", 61, 2, 62, 1),
    Sketcher.Constraint("Coincident", 62, 2, 60, 2),
    Sketcher.Constraint("Vertical", 23),
    Sketcher.Constraint("Vertical", 43),
    Sketcher.Constraint("Coincident", 3, 3, 0, 3),
    Sketcher.Constraint("Coincident", 6, 3, 0, 3),
    Sketcher.Constraint("Coincident", 9, 3, 0, 3),
    Sketcher.Constraint("Coincident", 12, 3, 0, 3),
    Sketcher.Constraint("Coincident", 15, 3, 0, 3),
    Sketcher.Constraint("Coincident", 18, 3, 0, 3),
    Sketcher.Constraint("Coincident", 21, 3, 0, 3),
    Sketcher.Constraint("Coincident", 24, 3, 0, 3),
    Sketcher.Constraint("Coincident", 27, 3, 0, 3),
    Sketcher.Constraint("Coincident", 30, 3, 0, 3),
    Sketcher.Constraint("Coincident", 33, 3, 0, 3),
    Sketcher.Constraint("Coincident", 36, 3, 0, 3),
    Sketcher.Constraint("Coincident", 39, 3, 0, 3),
    Sketcher.Constraint("Coincident", 42, 3, 0, 3),
    Sketcher.Constraint("Coincident", 45, 3, 0, 3),
    Sketcher.Constraint("Coincident", 48, 3, 0, 3),
    Sketcher.Constraint("Coincident", 51, 3, 0, 3),
    Sketcher.Constraint("Coincident", 54, 3, 0, 3),
    Sketcher.Constraint("Coincident", 57, 3, 0, 3),
    Sketcher.Constraint("Coincident", 60, 3, 0, 3),
    Sketcher.Constraint("Equal", 0, 3),
    Sketcher.Constraint("Equal", 3, 6),
    Sketcher.Constraint("Equal", 6, 9),
    Sketcher.Constraint("Equal", 9, 12),
    Sketcher.Constraint("Equal", 12, 15),
    Sketcher.Constraint("Equal", 15, 18),
    Sketcher.Constraint("Equal", 18, 21),
    Sketcher.Constraint("Equal", 21, 24),
    Sketcher.Constraint("Equal", 24, 27),
    Sketcher.Constraint("Equal", 27, 30),
    Sketcher.Constraint("Equal", 30, 33),
    Sketcher.Constraint("Equal", 33, 36),
    Sketcher.Constraint("Equal", 36, 39),
    Sketcher.Constraint("Equal", 39, 42),
    Sketcher.Constraint("Equal", 42, 45),
    Sketcher.Constraint("Equal", 45, 48),
    Sketcher.Constraint("Equal", 48, 51),
    Sketcher.Constraint("Equal", 51, 54),
    Sketcher.Constraint("Equal", 54, 57),
    Sketcher.Constraint("Equal", 57, 60),
    Sketcher.Constraint("PointOnObject", 0, 3, -1),
    Sketcher.Constraint("Parallel", 2, 22),
    Sketcher.Constraint("Parallel", 5, 25),
    Sketcher.Constraint("Parallel", 8, 28),
    Sketcher.Constraint("Parallel", 11, 31),
    Sketcher.Constraint("Parallel", 14, 34),
    Sketcher.Constraint("Parallel", 17, 37),
    Sketcher.Constraint("Parallel", 20, 40),
    Sketcher.Constraint("Parallel", 1, 44),
    Sketcher.Constraint("Parallel", 26, 46),
    Sketcher.Constraint("Parallel", 4, 47),
    Sketcher.Constraint("Parallel", 29, 49),
    Sketcher.Constraint("Parallel", 7, 50),
    Sketcher.Constraint("Parallel", 32, 52),
    Sketcher.Constraint("Parallel", 10, 53),
    Sketcher.Constraint("Parallel", 35, 55),
    Sketcher.Constraint("Parallel", 13, 56),
    Sketcher.Constraint("Parallel", 38, 58),
    Sketcher.Constraint("Parallel", 16, 59),
    Sketcher.Constraint("Parallel", 41, 61),
    Sketcher.Constraint("Parallel", 19, 62),
    Sketcher.Constraint("Horizontal", 0, 1, 2, 2),
    Sketcher.Constraint("Horizontal", 32, 2, 33, 1),
    Sketcher.Constraint("Horizontal", 31, 2, 34, 2),
    Sketcher.Constraint("Horizontal", 30, 1, 35, 2),
    Sketcher.Constraint("Horizontal", 29, 2, 36, 1),
    Sketcher.Constraint("Horizontal", 28, 2, 37, 2),
    Sketcher.Constraint("Horizontal", 27, 1, 38, 2),
    Sketcher.Constraint("Horizontal", 26, 2, 39, 1),
    Sketcher.Constraint("Horizontal", 25, 2, 40, 2),
    Sketcher.Constraint("Horizontal", 24, 1, 41, 2),
    Sketcher.Constraint("Horizontal", 23, 2, 42, 1),
    Sketcher.Constraint("Horizontal", 22, 2, 43, 2),
    Sketcher.Constraint("Horizontal", 21, 1, 44, 2),
    Sketcher.Constraint("Horizontal", 20, 2, 45, 1),
    Sketcher.Constraint("Horizontal", 19, 2, 46, 2),
    Sketcher.Constraint("Horizontal", 18, 1, 47, 2),
    Sketcher.Constraint("Horizontal", 17, 2, 48, 1),
    Sketcher.Constraint("Horizontal", 16, 2, 49, 2),
    Sketcher.Constraint("Horizontal", 15, 1, 50, 2),
    Sketcher.Constraint("Horizontal", 14, 2, 51, 1),
    Sketcher.Constraint("Horizontal", 13, 2, 52, 2),
    Sketcher.Constraint("Horizontal", 12, 1, 53, 2),
    Sketcher.Constraint("Horizontal", 11, 2, 54, 1),
    Sketcher.Constraint("Horizontal", 10, 2, 55, 2),
    Sketcher.Constraint("Horizontal", 8, 2, 57, 1),
    Sketcher.Constraint("Horizontal", 7, 2, 58, 2),
    Sketcher.Constraint("Horizontal", 5, 2, 60, 1),
    Sketcher.Constraint("Horizontal", 4, 2, 61, 2),
    Sketcher.Constraint("Equal", 2, 4),
    Sketcher.Constraint("Equal", 4, 5),
    Sketcher.Constraint("Equal", 5, 7),
    Sketcher.Constraint("Equal", 7, 8),
    Sketcher.Constraint("Equal", 8, 10),
    Sketcher.Constraint("Equal", 10, 11),
    Sketcher.Constraint("Equal", 11, 13),
    Sketcher.Constraint("Equal", 13, 14),
    Sketcher.Constraint("Equal", 14, 16),
    Sketcher.Constraint("Equal", 16, 17),
    Sketcher.Constraint("Equal", 17, 19),
    Sketcher.Constraint("Equal", 19, 20),
    Sketcher.Constraint("Equal", 20, 22),
    Sketcher.Constraint("Equal", 22, 25),
    Sketcher.Constraint("Equal", 25, 26),
    Sketcher.Constraint("Equal", 26, 28),
    Sketcher.Constraint("Equal", 28, 29),
    Sketcher.Constraint("Equal", 29, 31),
    Sketcher.Constraint("Equal", 31, 32),
    Sketcher.Constraint("Equal", 32, 34),
    Sketcher.Constraint("Equal", 35, 37),
    Sketcher.Constraint("Equal", 38, 40),
    Sketcher.Constraint("Angle", 1, Q("30 deg")),
    Sketcher.Constraint("Radius", 0, Q("2.375 mm")),
    Sketcher.Constraint("DistanceX", 0, 3, -1, 1, Q("5.25 mm")),
    Sketcher.Constraint("DistanceY", 23, 1, 23, 2, Q("0.359102 mm")),
    Sketcher.Constraint("DistanceY", 1, 2, -1, 1, Q("2.175 mm")),
    Sketcher.Constraint("DistanceY", -1, 1, 30, 1, Q("2.281902 mm")),
    Sketcher.Constraint("DistanceX", 3, 1, -1, 1, Q("4.853159 mm")),
    Sketcher.Constraint("DistanceY", 4, 2, -1, 1, Q("2.078371 mm")),
    Sketcher.Constraint("DistanceY", 6, 1, -1, 1, Q("2.120609 mm")),
    Sketcher.Constraint("DistanceX", 7, 2, -1, 1, Q("4.024779 mm")),
    Sketcher.Constraint("DistanceY", 9, 1, -1, 1, Q("1.711181 mm")),
    Sketcher.Constraint("DistanceY", 10, 2, -1, 1, Q("1.35609 mm")),
    Sketcher.Constraint("DistanceX", 16, 2, -1, 1, Q("3.081082 mm")),
    Sketcher.Constraint("DistanceX", 18, 1, -1, 1, Q("2.885281 mm")),
])
pocket2 = body.newObject("PartDesign::Pocket", "Pocket001")
pocket2.Profile = sketch7
pocket2.setExpression("Length", "Params.pocket2_length")

sketch8 = body.newObject("Sketcher::SketchObject", "Sketch007")
sketch8.AttachmentSupport = (doc.getObject("XZ_Plane"), [""])
sketch8.MapMode = "FlatFace"
sketch8.AttachmentOffset = App.Placement(V(0, 0, -18.7), App.Rotation())
sketch8.addGeometry(Part.Circle(V(-5.2, 0, 0), V(0, 0, 1), 0.9), False)
sketch8.addConstraint([
    Sketcher.Constraint("PointOnObject", 0, 3, -1),
    Sketcher.Constraint("Diameter", 0, Q("1.85 mm")),
    Sketcher.Constraint("DistanceX", 0, 3, -1, 1, Q("5.25 mm")),
])
sketch8.setExpression("Constraints[1]", "Params.sketch8_diameter")
pocket3 = body.newObject("PartDesign::Pocket", "Pocket002")
pocket3.Profile = sketch8
pocket3.setExpression("Length", "Params.pocket3_length")
pocket3.Reversed = True

doc.recompute()
